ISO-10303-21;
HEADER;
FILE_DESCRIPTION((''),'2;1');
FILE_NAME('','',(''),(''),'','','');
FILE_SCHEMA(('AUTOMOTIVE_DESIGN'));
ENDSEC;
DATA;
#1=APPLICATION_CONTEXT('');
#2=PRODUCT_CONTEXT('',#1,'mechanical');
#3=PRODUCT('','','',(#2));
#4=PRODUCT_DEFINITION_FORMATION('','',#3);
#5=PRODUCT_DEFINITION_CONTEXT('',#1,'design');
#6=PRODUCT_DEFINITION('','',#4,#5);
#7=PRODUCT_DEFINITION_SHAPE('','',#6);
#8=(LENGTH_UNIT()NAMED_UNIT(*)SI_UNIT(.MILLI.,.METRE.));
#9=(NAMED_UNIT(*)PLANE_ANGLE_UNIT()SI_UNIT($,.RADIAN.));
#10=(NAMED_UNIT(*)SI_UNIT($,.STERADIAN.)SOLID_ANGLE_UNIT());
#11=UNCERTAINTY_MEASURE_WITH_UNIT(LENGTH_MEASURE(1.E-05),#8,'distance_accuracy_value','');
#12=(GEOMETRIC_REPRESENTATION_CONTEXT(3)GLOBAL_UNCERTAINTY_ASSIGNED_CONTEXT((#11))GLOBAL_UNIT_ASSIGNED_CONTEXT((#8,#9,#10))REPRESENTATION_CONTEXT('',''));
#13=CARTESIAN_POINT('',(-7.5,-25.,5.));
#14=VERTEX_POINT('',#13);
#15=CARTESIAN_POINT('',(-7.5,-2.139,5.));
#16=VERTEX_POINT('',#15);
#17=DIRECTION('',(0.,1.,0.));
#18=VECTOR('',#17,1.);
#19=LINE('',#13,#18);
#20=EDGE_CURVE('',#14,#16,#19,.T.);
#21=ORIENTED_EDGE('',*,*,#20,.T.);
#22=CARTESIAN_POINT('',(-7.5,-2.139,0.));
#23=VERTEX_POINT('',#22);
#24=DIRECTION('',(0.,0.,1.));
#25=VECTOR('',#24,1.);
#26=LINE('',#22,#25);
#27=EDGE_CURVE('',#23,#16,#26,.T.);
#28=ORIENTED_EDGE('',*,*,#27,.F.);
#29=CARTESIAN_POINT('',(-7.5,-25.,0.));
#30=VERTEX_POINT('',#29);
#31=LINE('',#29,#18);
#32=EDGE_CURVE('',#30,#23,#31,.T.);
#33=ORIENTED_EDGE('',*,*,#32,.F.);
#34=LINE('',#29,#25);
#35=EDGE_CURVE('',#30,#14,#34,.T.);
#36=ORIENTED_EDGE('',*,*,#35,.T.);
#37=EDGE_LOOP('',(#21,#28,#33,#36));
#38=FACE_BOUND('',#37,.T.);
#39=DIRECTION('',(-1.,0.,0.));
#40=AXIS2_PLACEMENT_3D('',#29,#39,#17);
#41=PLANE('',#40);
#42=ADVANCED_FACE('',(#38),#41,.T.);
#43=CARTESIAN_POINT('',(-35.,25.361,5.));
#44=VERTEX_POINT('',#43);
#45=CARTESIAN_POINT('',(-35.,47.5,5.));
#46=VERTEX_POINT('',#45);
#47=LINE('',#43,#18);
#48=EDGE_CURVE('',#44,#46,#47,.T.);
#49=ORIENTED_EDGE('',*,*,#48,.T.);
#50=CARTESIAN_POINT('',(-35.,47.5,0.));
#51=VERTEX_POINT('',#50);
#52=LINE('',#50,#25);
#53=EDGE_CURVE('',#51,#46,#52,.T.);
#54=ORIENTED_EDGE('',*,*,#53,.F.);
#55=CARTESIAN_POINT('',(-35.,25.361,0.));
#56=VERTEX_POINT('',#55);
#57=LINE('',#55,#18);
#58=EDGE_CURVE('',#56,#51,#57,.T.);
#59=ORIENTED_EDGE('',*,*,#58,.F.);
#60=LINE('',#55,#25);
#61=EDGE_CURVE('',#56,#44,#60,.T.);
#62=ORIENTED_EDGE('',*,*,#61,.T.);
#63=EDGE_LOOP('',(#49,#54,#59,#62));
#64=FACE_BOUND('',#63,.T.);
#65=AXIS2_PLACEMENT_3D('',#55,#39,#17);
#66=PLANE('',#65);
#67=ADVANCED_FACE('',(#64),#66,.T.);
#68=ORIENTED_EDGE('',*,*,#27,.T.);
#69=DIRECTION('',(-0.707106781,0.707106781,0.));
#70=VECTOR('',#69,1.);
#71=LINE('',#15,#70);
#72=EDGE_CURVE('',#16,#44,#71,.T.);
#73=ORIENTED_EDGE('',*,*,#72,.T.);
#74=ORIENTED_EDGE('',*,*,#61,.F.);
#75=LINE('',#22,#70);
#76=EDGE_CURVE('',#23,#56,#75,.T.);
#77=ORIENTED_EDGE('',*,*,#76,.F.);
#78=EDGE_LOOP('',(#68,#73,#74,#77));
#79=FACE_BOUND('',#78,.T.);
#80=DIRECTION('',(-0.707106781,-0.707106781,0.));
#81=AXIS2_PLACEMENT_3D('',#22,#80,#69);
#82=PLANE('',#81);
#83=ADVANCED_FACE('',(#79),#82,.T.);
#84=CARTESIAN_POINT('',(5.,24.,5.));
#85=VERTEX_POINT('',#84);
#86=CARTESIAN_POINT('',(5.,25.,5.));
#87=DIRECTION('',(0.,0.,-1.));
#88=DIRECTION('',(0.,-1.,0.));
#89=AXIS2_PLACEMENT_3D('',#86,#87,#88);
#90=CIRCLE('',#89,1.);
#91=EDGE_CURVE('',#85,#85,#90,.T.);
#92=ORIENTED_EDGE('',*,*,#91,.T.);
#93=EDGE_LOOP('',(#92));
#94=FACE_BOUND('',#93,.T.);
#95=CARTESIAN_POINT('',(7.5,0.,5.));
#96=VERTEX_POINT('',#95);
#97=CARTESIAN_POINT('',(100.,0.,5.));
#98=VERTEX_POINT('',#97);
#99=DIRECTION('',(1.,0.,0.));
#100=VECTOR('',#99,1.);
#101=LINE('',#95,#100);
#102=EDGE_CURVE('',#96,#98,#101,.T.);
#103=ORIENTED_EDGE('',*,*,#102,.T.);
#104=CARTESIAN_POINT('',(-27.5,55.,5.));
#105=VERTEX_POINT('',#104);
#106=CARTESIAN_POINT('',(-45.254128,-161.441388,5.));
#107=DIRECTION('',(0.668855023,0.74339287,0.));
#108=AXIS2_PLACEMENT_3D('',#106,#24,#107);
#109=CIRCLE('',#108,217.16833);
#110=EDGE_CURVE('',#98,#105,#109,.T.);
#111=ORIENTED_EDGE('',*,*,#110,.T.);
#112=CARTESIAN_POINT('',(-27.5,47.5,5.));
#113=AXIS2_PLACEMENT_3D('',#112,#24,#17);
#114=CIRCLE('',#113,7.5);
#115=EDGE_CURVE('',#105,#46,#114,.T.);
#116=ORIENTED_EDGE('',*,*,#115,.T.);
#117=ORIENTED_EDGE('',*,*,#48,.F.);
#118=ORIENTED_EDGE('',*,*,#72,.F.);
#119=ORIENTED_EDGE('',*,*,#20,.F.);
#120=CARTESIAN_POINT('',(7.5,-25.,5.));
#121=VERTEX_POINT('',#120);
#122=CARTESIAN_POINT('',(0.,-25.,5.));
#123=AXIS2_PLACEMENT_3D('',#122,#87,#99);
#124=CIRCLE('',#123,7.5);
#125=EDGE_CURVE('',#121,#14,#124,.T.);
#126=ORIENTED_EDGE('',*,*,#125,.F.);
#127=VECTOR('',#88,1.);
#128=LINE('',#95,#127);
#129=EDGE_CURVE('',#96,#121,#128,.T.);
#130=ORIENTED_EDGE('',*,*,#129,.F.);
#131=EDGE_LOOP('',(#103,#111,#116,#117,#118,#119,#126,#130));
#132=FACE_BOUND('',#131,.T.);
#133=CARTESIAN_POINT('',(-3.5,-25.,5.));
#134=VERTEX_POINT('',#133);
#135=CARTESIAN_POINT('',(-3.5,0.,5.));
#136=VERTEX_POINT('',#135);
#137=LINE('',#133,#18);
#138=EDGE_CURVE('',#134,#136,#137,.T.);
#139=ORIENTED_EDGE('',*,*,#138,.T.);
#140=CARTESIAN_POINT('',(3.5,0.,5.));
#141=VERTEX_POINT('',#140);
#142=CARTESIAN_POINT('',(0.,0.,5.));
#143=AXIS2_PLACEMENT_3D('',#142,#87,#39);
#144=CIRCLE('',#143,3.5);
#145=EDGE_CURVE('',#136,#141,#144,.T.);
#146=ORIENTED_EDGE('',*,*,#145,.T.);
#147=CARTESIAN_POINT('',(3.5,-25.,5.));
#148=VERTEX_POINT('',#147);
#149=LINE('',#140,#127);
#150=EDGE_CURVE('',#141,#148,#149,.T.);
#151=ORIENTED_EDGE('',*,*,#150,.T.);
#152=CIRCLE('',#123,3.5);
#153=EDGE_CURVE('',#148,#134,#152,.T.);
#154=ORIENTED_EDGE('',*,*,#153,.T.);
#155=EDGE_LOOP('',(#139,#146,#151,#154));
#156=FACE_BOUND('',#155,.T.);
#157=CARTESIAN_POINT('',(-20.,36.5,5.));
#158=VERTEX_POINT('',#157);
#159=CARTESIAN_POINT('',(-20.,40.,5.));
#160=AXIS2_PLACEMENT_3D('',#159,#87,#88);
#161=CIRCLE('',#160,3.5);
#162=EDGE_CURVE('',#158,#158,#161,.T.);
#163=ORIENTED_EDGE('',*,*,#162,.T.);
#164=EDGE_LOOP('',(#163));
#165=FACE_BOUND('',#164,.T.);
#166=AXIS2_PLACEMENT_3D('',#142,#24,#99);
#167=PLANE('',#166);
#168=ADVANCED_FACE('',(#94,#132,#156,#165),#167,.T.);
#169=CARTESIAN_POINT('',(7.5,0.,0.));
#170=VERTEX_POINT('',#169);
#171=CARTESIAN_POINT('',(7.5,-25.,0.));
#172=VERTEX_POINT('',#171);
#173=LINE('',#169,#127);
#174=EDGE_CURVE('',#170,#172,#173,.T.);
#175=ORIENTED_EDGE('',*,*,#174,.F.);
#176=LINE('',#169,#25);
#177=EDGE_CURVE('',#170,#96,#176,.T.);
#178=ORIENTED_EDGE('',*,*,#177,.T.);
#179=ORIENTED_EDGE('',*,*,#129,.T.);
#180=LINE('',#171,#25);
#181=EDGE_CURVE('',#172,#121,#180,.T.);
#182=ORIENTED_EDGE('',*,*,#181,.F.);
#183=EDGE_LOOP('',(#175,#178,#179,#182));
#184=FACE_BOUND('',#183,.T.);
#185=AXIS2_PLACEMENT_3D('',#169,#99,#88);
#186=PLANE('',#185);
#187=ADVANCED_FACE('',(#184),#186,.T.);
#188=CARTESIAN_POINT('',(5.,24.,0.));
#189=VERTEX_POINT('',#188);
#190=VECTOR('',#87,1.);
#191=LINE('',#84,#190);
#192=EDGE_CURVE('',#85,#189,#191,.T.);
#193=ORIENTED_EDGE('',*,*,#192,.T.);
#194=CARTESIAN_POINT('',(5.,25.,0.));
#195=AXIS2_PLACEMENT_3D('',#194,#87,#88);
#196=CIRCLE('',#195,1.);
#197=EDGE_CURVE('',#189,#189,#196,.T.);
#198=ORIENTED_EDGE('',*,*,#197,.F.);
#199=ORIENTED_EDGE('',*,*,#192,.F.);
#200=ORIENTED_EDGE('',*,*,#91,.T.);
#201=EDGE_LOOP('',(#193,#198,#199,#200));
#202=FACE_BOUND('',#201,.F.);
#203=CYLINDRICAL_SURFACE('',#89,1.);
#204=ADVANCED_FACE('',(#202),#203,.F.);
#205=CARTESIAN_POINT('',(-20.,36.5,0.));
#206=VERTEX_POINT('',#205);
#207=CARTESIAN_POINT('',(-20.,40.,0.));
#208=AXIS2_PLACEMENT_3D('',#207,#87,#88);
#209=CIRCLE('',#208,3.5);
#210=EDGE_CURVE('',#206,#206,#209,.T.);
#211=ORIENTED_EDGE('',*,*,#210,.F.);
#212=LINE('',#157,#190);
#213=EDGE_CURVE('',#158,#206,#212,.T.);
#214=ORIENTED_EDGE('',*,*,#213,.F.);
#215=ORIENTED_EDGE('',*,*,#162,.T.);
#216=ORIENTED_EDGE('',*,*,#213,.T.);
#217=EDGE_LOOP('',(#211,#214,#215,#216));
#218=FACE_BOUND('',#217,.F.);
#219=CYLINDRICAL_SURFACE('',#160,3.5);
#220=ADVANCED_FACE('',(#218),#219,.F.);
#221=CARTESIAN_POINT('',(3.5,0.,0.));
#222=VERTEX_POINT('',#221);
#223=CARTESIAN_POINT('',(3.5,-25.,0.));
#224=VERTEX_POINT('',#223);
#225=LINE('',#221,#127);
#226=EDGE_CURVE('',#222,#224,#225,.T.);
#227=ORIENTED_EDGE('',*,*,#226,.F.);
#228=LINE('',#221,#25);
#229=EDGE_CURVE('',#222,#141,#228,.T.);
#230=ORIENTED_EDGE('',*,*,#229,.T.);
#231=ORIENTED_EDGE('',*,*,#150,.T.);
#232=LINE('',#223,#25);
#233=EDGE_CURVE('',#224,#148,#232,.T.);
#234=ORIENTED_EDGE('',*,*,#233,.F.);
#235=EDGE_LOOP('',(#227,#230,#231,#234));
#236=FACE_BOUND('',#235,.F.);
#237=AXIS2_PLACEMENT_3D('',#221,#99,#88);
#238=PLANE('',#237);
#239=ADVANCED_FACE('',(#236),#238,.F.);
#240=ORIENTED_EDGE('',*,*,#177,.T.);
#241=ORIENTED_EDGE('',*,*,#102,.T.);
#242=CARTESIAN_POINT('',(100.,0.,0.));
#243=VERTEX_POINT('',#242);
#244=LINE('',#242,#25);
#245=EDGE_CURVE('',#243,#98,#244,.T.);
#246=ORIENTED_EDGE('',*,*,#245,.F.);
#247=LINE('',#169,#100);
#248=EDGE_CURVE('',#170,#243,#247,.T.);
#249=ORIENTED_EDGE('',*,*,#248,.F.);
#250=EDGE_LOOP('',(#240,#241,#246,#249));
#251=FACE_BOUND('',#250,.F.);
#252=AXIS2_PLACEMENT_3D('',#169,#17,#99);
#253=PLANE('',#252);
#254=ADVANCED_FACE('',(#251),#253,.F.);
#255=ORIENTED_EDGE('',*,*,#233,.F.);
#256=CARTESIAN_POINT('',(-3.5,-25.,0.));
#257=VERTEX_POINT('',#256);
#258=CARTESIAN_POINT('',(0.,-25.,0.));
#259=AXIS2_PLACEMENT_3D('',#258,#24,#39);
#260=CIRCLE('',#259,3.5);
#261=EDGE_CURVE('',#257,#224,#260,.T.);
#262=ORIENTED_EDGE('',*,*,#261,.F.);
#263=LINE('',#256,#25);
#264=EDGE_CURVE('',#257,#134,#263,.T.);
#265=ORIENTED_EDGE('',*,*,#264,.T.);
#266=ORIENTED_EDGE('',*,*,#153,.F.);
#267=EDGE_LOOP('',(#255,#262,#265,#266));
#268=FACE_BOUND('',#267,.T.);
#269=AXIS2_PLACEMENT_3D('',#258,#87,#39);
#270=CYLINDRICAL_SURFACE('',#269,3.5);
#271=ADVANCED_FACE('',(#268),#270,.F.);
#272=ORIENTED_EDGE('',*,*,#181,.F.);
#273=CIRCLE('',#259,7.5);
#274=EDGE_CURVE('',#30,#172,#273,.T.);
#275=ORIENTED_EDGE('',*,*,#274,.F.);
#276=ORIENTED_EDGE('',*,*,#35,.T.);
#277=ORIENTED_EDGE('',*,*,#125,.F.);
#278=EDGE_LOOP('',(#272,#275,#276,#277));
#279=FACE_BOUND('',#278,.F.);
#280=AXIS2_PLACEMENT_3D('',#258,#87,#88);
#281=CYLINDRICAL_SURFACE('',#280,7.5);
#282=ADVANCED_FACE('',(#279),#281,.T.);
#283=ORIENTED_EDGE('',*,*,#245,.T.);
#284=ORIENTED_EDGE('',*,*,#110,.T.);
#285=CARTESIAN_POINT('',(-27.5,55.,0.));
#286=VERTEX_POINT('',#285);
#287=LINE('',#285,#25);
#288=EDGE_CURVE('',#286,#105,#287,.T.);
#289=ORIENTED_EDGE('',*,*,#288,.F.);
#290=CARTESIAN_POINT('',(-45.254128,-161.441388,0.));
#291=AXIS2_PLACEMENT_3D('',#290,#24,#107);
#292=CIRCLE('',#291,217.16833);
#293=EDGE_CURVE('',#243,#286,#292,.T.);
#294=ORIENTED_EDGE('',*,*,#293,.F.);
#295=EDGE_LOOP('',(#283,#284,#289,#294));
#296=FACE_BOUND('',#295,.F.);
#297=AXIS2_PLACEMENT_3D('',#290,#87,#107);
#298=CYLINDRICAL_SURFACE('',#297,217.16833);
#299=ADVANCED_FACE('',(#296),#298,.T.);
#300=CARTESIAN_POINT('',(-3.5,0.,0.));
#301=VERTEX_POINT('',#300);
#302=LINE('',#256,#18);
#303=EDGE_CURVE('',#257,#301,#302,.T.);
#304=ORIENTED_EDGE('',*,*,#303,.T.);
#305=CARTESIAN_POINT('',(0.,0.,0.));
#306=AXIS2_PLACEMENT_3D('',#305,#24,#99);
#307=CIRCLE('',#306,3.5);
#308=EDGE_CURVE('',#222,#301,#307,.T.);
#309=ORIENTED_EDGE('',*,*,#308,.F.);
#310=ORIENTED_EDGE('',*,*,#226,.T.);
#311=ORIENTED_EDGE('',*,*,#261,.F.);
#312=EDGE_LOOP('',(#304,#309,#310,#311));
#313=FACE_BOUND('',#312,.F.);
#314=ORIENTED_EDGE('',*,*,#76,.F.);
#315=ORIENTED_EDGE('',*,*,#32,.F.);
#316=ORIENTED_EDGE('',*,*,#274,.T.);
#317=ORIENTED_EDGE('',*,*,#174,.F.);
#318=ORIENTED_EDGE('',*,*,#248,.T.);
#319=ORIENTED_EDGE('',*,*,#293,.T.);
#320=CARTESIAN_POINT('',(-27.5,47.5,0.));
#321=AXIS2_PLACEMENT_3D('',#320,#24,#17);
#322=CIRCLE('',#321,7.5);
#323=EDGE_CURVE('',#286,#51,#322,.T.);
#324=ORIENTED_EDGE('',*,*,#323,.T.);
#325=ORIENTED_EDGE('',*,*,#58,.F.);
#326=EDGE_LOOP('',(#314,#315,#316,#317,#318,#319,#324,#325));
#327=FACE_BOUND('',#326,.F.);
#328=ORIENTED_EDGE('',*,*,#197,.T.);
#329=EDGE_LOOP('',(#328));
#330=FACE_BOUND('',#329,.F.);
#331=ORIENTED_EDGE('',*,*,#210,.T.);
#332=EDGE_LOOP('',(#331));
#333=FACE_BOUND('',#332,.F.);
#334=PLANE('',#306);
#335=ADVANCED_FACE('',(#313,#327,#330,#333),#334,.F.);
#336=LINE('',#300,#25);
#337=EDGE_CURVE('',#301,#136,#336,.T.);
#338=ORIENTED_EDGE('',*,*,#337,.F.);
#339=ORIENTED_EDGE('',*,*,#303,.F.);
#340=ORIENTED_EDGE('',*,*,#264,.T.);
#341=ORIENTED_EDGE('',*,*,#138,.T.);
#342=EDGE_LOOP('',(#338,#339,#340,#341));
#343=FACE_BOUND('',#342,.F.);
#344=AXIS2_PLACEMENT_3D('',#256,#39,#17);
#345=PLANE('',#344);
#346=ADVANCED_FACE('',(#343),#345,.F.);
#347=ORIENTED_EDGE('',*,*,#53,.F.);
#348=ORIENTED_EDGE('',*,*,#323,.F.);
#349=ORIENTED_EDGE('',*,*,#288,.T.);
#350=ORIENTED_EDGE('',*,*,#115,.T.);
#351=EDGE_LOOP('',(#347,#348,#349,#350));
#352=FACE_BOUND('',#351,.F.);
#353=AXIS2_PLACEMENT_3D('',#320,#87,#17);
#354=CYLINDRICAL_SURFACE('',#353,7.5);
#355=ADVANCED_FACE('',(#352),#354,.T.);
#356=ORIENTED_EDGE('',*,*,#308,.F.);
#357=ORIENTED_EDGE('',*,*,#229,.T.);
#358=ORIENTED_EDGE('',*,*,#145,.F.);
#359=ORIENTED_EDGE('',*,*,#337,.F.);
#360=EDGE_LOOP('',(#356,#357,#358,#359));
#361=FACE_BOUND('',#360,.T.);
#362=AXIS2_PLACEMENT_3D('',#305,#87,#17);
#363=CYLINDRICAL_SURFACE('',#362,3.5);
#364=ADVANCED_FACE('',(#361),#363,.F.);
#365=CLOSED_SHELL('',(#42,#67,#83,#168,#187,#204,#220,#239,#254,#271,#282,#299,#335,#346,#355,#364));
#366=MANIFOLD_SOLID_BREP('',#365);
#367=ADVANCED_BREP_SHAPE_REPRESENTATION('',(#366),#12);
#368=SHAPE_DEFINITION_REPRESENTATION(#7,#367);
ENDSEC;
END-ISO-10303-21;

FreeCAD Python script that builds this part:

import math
import FreeCAD as App
import Part
import Sketcher

doc = App.newDocument("Part")
body = doc.addObject("PartDesign::Body", "Body")

# Sketch on XY plane
sketch1 = body.newObject("Sketcher::SketchObject", "Sketch")
sketch1.AttachmentSupport = (doc.getObject("XY_Plane"), [""])
sketch1.MapMode = "FlatFace"
sketch1.addGeometry(Part.LineSegment(App.Vector(7.5, -25, 0), App.Vector(7.5, 0, 0)), False)
sketch1.addGeometry(Part.LineSegment(App.Vector(7.5, 0, 0), App.Vector(100, 0, 0)), False)
sketch1.addGeometry(Part.ArcOfCircle(Part.Circle(App.Vector(-45.3, -161.4, 0), App.Vector(0, 0, 1), 217.2), math.radians(48), math.radians(85)), False)
sketch1.addGeometry(Part.ArcOfCircle(Part.Circle(App.Vector(-27.5, 47.5, 0), App.Vector(0, 0, 1), 7.5), math.radians(90), math.radians(180)), False)
sketch1.addGeometry(Part.LineSegment(App.Vector(-35, 47.5, 0), App.Vector(-35, 25.4, 0)), False)
sketch1.addGeometry(Part.LineSegment(App.Vector(-35, 25.4, 0), App.Vector(-7.5, -2.1, 0)), False)
sketch1.addGeometry(Part.LineSegment(App.Vector(-7.5, -2.1, 0), App.Vector(-7.5, -25, 0)), False)
sketch1.addGeometry(Part.ArcOfCircle(Part.Circle(App.Vector(0, -25, 0), App.Vector(0, 0, 1), 7.5), math.radians(180), math.radians(360)), False)
sketch1.addGeometry(Part.ArcOfCircle(Part.Circle(App.Vector(0, -25, 0), App.Vector(0, 0, 1), 3.5), math.radians(180), math.radians(360)), False)
sketch1.addGeometry(Part.LineSegment(App.Vector(-3.5, -25, 0), App.Vector(-3.5, 0, 0)), False)
sketch1.addGeometry(Part.ArcOfCircle(Part.Circle(App.Vector(0, 0, 0), App.Vector(0, 0, 1), 3.5), math.radians(0), math.radians(180)), False)
sketch1.addGeometry(Part.LineSegment(App.Vector(3.5, 0, 0), App.Vector(3.5, -25, 0)), False)
sketch1.addConstraint(Sketcher.Constraint("Coincident", 0, 2, 1, 1))
sketch1.addConstraint(Sketcher.Constraint("Coincident", 1, 2, 2, 1))
sketch1.addConstraint(Sketcher.Constraint("Coincident", 2, 2, 3, 1))
sketch1.addConstraint(Sketcher.Constraint("Tangent", 3, 2, 4, 1))
sketch1.addConstraint(Sketcher.Constraint("Coincident", 4, 2, 5, 1))
sketch1.addConstraint(Sketcher.Constraint("Coincident", 5, 2, 6, 1))
sketch1.addConstraint(Sketcher.Constraint("Tangent", 6, 2, 7, 1))
sketch1.addConstraint(Sketcher.Constraint("Tangent", 7, 2, 0, 1))
sketch1.addConstraint(Sketcher.Constraint("Tangent", 8, 1, 9, 1))
sketch1.addConstraint(Sketcher.Constraint("Tangent", 9, 2, 10, 2))
sketch1.addConstraint(Sketcher.Constraint("Tangent", 10, 1, 11, 1))
sketch1.addConstraint(Sketcher.Constraint("Tangent", 11, 2, 8, 2))
sketch1.addConstraint(Sketcher.Constraint("Vertical", 0))
sketch1.addConstraint(Sketcher.Constraint("Horizontal", 1))
sketch1.addConstraint(Sketcher.Constraint("Vertical", 4))
sketch1.addConstraint(Sketcher.Constraint("Vertical", 6))
sketch1.addConstraint(Sketcher.Constraint("Vertical", 9))
sketch1.addConstraint(Sketcher.Constraint("Vertical", 11))
sketch1.addConstraint(Sketcher.Constraint("Coincident", 10, 3, -1, 1))
sketch1.addConstraint(Sketcher.Constraint("Coincident", 8, 3, 7, 3))
sketch1.addConstraint(Sketcher.Constraint("Equal", 3, 7))
sketch1.addConstraint(Sketcher.Constraint("PointOnObject", 0, 2, -1))
sketch1.addConstraint(Sketcher.Constraint("Vertical", 3, 3, 2, 2))
sketch1.addConstraint(Sketcher.Constraint("Radius", 3, 7.5))
sketch1.addConstraint(Sketcher.Constraint("Radius", 8, 3.5))
sketch1.addConstraint(Sketcher.Constraint("DistanceY", 0, 1, 0, 2, 25.0))
sketch1.addConstraint(Sketcher.Constraint("DistanceX", 3, 3, -1, 1, 27.5))
sketch1.addConstraint(Sketcher.Constraint("Radius", 2, 217.1685))
sketch1.addConstraint(Sketcher.Constraint("DistanceY", 5, 2, 4, 2, 27.5))
sketch1.addConstraint(Sketcher.Constraint("DistanceX", 1, 1, 1, 2, 92.5))
sketch1.addConstraint(Sketcher.Constraint("DistanceY", -1, 1, 2, 2, 55.0))
sketch1.addConstraint(Sketcher.Constraint("DistanceY", 4, 2, 4, 1, 22.139))
pad1 = body.newObject("PartDesign::Pad", "Pad")
pad1.Profile = sketch1
pad1.Length = 5

# Sketch on XY plane
sketch2 = body.newObject("Sketcher::SketchObject", "Sketch001")
sketch2.AttachmentSupport = (doc.getObject("XY_Plane"), [""])
sketch2.MapMode = "FlatFace"
sketch2.AttachmentOffset = App.Placement(App.Vector(0, 0, 5), App.Rotation())
sketch2.addGeometry(Part.Circle(App.Vector(-20, 40, 0), App.Vector(0, 0, 1), 3.5), False)
sketch2.addConstraint(Sketcher.Constraint("Diameter", 0, 7.0))
sketch2.addConstraint(Sketcher.Constraint("DistanceX", 0, 3, -1, 1, 20.0))
sketch2.addConstraint(Sketcher.Constraint("DistanceY", -1, 1, 0, 3, 40.0))
doc.recompute()
hole = body.newObject("PartDesign::Hole", "Hole")
hole.Profile = sketch2
hole.ThreadType = "None"
hole.Diameter = 7
hole.DepthType = "ThroughAll"

# Sketch on XY plane
sketch3 = body.newObject("Sketcher::SketchObject", "Sketch002")
sketch3.AttachmentSupport = (doc.getObject("XY_Plane"), [""])
sketch3.MapMode = "FlatFace"
sketch3.AttachmentOffset = App.Placement(App.Vector(0, 0, 5), App.Rotation())
sketch3.addGeometry(Part.Circle(App.Vector(5, 25, 0), App.Vector(0, 0, 1), 1), False)
sketch3.addConstraint(Sketcher.Constraint("Diameter", 0, 2.0))
sketch3.addConstraint(Sketcher.Constraint("DistanceX", -1, 1, 0, 3, 5.0))
sketch3.addConstraint(Sketcher.Constraint("DistanceY", -1, 1, 0, 3, 25.0))
doc.recompute()
hole2 = body.newObject("PartDesign::Hole", "Hole001")
hole2.Profile = sketch3
hole2.ThreadType = "None"
hole2.Diameter = 2
hole2.DepthType = "ThroughAll"

doc.recompute()
